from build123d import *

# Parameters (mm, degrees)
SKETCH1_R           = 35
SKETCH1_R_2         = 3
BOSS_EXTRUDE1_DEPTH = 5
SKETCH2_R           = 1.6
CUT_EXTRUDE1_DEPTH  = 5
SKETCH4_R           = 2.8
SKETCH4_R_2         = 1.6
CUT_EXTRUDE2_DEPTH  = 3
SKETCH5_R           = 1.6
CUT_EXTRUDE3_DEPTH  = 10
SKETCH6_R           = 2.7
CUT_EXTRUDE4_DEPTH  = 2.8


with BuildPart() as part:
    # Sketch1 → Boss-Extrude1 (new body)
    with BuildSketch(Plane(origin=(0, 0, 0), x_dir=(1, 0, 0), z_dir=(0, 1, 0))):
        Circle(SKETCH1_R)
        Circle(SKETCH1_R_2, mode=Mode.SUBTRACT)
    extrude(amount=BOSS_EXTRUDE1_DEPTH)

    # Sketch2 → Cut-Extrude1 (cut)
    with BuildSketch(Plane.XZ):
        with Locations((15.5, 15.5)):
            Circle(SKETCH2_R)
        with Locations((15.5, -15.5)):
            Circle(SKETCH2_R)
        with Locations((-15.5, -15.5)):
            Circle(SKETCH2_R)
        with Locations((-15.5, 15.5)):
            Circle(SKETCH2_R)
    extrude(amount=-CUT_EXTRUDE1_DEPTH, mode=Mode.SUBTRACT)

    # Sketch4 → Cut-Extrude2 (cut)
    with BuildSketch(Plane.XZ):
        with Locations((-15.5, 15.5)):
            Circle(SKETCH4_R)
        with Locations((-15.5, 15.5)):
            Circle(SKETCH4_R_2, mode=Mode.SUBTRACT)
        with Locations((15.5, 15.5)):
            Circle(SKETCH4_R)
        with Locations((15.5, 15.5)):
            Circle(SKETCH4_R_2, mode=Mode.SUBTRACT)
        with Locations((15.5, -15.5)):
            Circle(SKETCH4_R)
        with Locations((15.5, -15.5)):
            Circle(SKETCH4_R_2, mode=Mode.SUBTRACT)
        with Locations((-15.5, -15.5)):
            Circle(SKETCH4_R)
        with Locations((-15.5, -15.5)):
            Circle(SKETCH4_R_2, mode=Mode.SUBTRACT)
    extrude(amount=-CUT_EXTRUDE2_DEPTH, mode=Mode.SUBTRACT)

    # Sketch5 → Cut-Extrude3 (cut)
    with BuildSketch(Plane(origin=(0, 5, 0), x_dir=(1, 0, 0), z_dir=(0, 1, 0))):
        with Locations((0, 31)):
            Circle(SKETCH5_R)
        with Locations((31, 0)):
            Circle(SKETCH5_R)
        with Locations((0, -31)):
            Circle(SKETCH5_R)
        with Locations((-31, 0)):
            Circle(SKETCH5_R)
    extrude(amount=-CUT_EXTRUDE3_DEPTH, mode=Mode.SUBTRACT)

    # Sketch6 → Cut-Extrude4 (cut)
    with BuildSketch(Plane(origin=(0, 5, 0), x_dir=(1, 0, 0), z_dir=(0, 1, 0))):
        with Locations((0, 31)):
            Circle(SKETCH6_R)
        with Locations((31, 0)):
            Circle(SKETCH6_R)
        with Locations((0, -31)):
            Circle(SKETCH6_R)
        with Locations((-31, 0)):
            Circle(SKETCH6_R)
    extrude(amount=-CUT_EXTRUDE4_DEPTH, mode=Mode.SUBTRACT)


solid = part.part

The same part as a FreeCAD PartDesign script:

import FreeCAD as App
import Part
import Sketcher

V = App.Vector
Q = App.Units.Quantity

doc = App.newDocument("Part")
params = doc.addObject("Spreadsheet::Sheet", "Params")
for row, (alias, value) in enumerate([
    ("sketch1_diameter", "70 mm"),
    ("sketch1_diameter2", "6 mm"),
    ("pad1_length", "5 mm"),
    ("sketch2_diameter", "3.2 mm"),
    ("pocket1_length", "5 mm"),
    ("sketch3_diameter", "5.6 mm"),
    ("sketch3_diameter2", "3.2 mm"),
    ("pocket2_length", "3 mm"),
    ("sketch4_diameter", "3.2 mm"),
    ("pocket3_length", "10 mm"),
    ("sketch5_diameter", "5.4 mm"),
    ("pocket4_length", "2.8 mm"),
], start=1):
    params.set(f"A{row}", alias)
    params.set(f"B{row}", "=" + value)
    params.setAlias(f"B{row}", alias)

body = doc.addObject("PartDesign::Body", "Body")

sketch1 = body.newObject("Sketcher::SketchObject", "Sketch")
sketch1.AttachmentSupport = (doc.getObject("XZ_Plane"), [""])
sketch1.MapMode = "FlatFace"
sketch1.addGeometry(Part.Circle(V(0, 0, 0), V(0, 0, 1), 35), False)
sketch1.addGeometry(Part.Circle(V(0, 0, 0), V(0, 0, 1), 3), False)
sketch1.addConstraint(Sketcher.Constraint("Coincident", 0, 3, -1, 1))
sketch1.addConstraint(Sketcher.Constraint("Coincident", 1, 3, -1, 1))
sketch1.addConstraint(Sketcher.Constraint("Diameter", 0, Q("70 mm")))
sketch1.addConstraint(Sketcher.Constraint("Diameter", 1, Q("6 mm")))
sketch1.setExpression("Constraints[2]", "Params.sketch1_diameter")
sketch1.setExpression("Constraints[3]", "Params.sketch1_diameter2")
pad1 = body.newObject("PartDesign::Pad", "Pad")
pad1.Profile = sketch1
pad1.setExpression("Length", "Params.pad1_length")
pad1.Reversed = True

sketch2 = body.newObject("Sketcher::SketchObject", "Sketch001")
sketch2.AttachmentSupport = (doc.getObject("XZ_Plane"), [""])
sketch2.MapMode = "FlatFace"
sketch2.addGeometry(Part.Circle(V(15.5, 15.5, 0), V(0, 0, 1), 1.6), False)
sketch2.addGeometry(Part.Circle(V(15.5, -15.5, 0), V(0, 0, 1), 1.6), False)
sketch2.addGeometry(Part.Circle(V(-15.5, -15.5, 0), V(0, 0, 1), 1.6), False)
sketch2.addGeometry(Part.Circle(V(-15.5, 15.5, 0), V(0, 0, 1), 1.6), False)
sketch2.addConstraint(Sketcher.Constraint("Equal", 0, 1))
sketch2.addConstraint(Sketcher.Constraint("Equal", 1, 2))
sketch2.addConstraint(Sketcher.Constraint("Equal", 2, 3))
sketch2.addConstraint(Sketcher.Constraint("Symmetric", 0, 3, 2, 3, -1, 1))
sketch2.addConstraint(Sketcher.Constraint("Symmetric", 1, 3, 3, 3, -1, 1))
sketch2.addConstraint(Sketcher.Constraint("Symmetric", 1, 3, 2, 3, -2))
sketch2.addConstraint(Sketcher.Constraint("Diameter", 0, Q("3.2 mm")))
sketch2.addConstraint(Sketcher.Constraint("DistanceY", 1, 3, 0, 3, Q("31 mm")))
sketch2.addConstraint(Sketcher.Constraint("DistanceX", 2, 3, 1, 3, Q("31 mm")))
sketch2.setExpression("Constraints[6]", "Params.sketch2_diameter")
pocket1 = body.newObject("PartDesign::Pocket", "Pocket")
pocket1.Profile = sketch2
pocket1.setExpression("Length", "Params.pocket1_length")

sketch3 = body.newObject("Sketcher::SketchObject", "Sketch002")
sketch3.AttachmentSupport = (doc.getObject("XZ_Plane"), [""])
sketch3.MapMode = "FlatFace"
sketch3.addGeometry(Part.Circle(V(-15.5, 15.5, 0), V(0, 0, 1), 2.8), False)
sketch3.addGeometry(Part.Circle(V(-15.5, 15.5, 0), V(0, 0, 1), 1.6), False)
sketch3.addGeometry(Part.Circle(V(15.5, 15.5, 0), V(0, 0, 1), 2.8), False)
sketch3.addGeometry(Part.Circle(V(15.5, 15.5, 0), V(0, 0, 1), 1.6), False)
sketch3.addGeometry(Part.Circle(V(15.5, -15.5, 0), V(0, 0, 1), 2.8), False)
sketch3.addGeometry(Part.Circle(V(15.5, -15.5, 0), V(0, 0, 1), 1.6), False)
sketch3.addGeometry(Part.Circle(V(-15.5, -15.5, 0), V(0, 0, 1), 2.8), False)
sketch3.addGeometry(Part.Circle(V(-15.5, -15.5, 0), V(0, 0, 1), 1.6), False)
sketch3.addConstraint(Sketcher.Constraint("Coincident", 1, 3, 0, 3))
sketch3.addConstraint(Sketcher.Constraint("Coincident", 3, 3, 2, 3))
sketch3.addConstraint(Sketcher.Constraint("Coincident", 5, 3, 4, 3))
sketch3.addConstraint(Sketcher.Constraint("Coincident", 7, 3, 6, 3))
sketch3.addConstraint(Sketcher.Constraint("Equal", 0, 2))
sketch3.addConstraint(Sketcher.Constraint("Equal", 1, 3))
sketch3.addConstraint(Sketcher.Constraint("Equal", 2, 4))
sketch3.addConstraint(Sketcher.Constraint("Equal", 3, 5))
sketch3.addConstraint(Sketcher.Constraint("Equal", 4, 6))
sketch3.addConstraint(Sketcher.Constraint("Equal", 5, 7))
sketch3.addConstraint(Sketcher.Constraint("Symmetric", 0, 3, 4, 3, -1, 1))
sketch3.addConstraint(Sketcher.Constraint("Symmetric", 2, 3, 6, 3, -1, 1))
sketch3.addConstraint(Sketcher.Constraint("Symmetric", 0, 3, 2, 3, -2))
sketch3.addConstraint(Sketcher.Constraint("Diameter", 0, Q("5.6 mm")))
sketch3.addConstraint(Sketcher.Constraint("Diameter", 1, Q("3.2 mm")))
sketch3.addConstraint(Sketcher.Constraint("DistanceX", 0, 3, 2, 3, Q("31 mm")))
sketch3.addConstraint(Sketcher.Constraint("DistanceY", 4, 3, 2, 3, Q("31 mm")))
sketch3.setExpression("Constraints[13]", "Params.sketch3_diameter")
sketch3.setExpression("Constraints[14]", "Params.sketch3_diameter2")
pocket2 = body.newObject("PartDesign::Pocket", "Pocket001")
pocket2.Profile = sketch3
pocket2.setExpression("Length", "Params.pocket2_length")

sketch4 = body.newObject("Sketcher::SketchObject", "Sketch003")
sketch4.AttachmentSupport = (doc.getObject("XZ_Plane"), [""])
sketch4.MapMode = "FlatFace"
sketch4.AttachmentOffset = App.Placement(V(0, 0, -5), App.Rotation())
sketch4.addGeometry(Part.Circle(V(0, -31, 0), V(0, 0, 1), 1.6), False)
sketch4.addGeometry(Part.Circle(V(31, 0, 0), V(0, 0, 1), 1.6), False)
sketch4.addGeometry(Part.Circle(V(0, 31, 0), V(0, 0, 1), 1.6), False)
sketch4.addGeometry(Part.Circle(V(-31, 0, 0), V(0, 0, 1), 1.6), False)
sketch4.addConstraint(Sketcher.Constraint("Equal", 0, 1))
sketch4.addConstraint(Sketcher.Constraint("Equal", 1, 2))
sketch4.addConstraint(Sketcher.Constraint("Equal", 2, 3))
sketch4.addConstraint(Sketcher.Constraint("Symmetric", 0, 3, 2, 3, -1, 1))
sketch4.addConstraint(Sketcher.Constraint("Symmetric", 1, 3, 3, 3, -1, 1))
sketch4.addConstraint(Sketcher.Constraint("PointOnObject", 0, 3, -2))
sketch4.addConstraint(Sketcher.Constraint("PointOnObject", 1, 3, -1))
sketch4.addConstraint(Sketcher.Constraint("Diameter", 0, Q("3.2 mm")))
sketch4.addConstraint(Sketcher.Constraint("DistanceY", 0, 3, -1, 1, Q("31 mm")))
sketch4.addConstraint(Sketcher.Constraint("DistanceX", -1, 1, 1, 3, Q("31 mm")))
sketch4.setExpression("Constraints[7]", "Params.sketch4_diameter")
pocket3 = body.newObject("PartDesign::Pocket", "Pocket002")
pocket3.Profile = sketch4
pocket3.setExpression("Length", "Params.pocket3_length")
pocket3.Reversed = True

sketch5 = body.newObject("Sketcher::SketchObject", "Sketch004")
sketch5.AttachmentSupport = (doc.getObject("XZ_Plane"), [""])
sketch5.MapMode = "FlatFace"
sketch5.AttachmentOffset = App.Placement(V(0, 0, -5), App.Rotation())
sketch5.addGeometry(Part.Circle(V(0, -31, 0), V(0, 0, 1), 2.7), False)
sketch5.addGeometry(Part.Circle(V(31, 0, 0), V(0, 0, 1), 2.7), False)
sketch5.addGeometry(Part.Circle(V(0, 31, 0), V(0, 0, 1), 2.7), False)
sketch5.addGeometry(Part.Circle(V(-31, 0, 0), V(0, 0, 1), 2.7), False)
sketch5.addConstraint(Sketcher.Constraint("Equal", 0, 1))
sketch5.addConstraint(Sketcher.Constraint("Equal", 1, 2))
sketch5.addConstraint(Sketcher.Constraint("Equal", 2, 3))
sketch5.addConstraint(Sketcher.Constraint("Symmetric", 0, 3, 2, 3, -1, 1))
sketch5.addConstraint(Sketcher.Constraint("Symmetric", 1, 3, 3, 3, -1, 1))
sketch5.addConstraint(Sketcher.Constraint("PointOnObject", 0, 3, -2))
sketch5.addConstraint(Sketcher.Constraint("PointOnObject", 1, 3, -1))
sketch5.addConstraint(Sketcher.Constraint("Diameter", 0, Q("5.4 mm")))
sketch5.addConstraint(Sketcher.Constraint("DistanceY", 0, 3, -1, 1, Q("31 mm")))
sketch5.addConstraint(Sketcher.Constraint("DistanceX", -1, 1, 1, 3, Q("31 mm")))
sketch5.setExpression("Constraints[7]", "Params.sketch5_diameter")
pocket4 = body.newObject("PartDesign::Pocket", "Pocket003")
pocket4.Profile = sketch5
pocket4.setExpression("Length", "Params.pocket4_length")
pocket4.Reversed = True

doc.recompute()
